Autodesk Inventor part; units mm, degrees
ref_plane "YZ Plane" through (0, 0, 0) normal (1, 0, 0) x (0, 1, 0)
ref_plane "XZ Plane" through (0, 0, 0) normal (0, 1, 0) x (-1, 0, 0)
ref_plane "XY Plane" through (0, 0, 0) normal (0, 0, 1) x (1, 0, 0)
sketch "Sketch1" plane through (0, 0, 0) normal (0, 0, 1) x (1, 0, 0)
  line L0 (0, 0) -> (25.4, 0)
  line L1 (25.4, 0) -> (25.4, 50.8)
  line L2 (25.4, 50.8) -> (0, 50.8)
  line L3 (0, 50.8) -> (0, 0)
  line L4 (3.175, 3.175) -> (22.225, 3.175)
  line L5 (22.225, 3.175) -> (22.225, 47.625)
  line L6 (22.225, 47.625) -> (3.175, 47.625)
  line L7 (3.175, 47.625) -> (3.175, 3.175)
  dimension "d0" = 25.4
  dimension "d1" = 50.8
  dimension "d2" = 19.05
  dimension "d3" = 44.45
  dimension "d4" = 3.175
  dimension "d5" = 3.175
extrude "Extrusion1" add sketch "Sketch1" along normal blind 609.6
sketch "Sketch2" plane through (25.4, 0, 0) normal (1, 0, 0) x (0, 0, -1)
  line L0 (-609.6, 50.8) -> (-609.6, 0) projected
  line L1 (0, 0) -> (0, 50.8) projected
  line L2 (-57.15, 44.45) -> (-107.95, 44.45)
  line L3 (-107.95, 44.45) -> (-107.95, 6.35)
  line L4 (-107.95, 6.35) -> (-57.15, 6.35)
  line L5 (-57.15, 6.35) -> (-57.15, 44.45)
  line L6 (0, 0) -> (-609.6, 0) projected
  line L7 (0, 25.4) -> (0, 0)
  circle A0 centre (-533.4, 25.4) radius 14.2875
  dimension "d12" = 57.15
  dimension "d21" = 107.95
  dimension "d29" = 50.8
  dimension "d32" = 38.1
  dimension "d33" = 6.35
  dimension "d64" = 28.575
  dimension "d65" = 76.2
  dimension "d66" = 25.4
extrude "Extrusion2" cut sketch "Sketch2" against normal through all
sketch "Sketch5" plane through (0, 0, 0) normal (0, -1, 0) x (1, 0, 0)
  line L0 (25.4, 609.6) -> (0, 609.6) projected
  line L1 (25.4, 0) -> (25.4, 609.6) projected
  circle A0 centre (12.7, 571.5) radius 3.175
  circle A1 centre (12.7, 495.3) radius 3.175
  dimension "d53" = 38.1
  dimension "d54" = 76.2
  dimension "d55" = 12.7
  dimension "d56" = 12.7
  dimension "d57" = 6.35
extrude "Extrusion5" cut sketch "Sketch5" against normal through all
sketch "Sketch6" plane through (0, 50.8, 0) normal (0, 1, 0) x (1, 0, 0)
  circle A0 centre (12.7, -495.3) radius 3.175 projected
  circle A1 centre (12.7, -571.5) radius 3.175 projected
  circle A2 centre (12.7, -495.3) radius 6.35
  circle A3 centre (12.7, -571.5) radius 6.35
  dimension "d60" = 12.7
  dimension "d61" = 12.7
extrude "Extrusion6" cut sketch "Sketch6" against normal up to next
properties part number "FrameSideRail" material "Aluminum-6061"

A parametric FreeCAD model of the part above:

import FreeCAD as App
import Part
import Sketcher

V = App.Vector
Q = App.Units.Quantity

doc = App.newDocument("Part")
params = doc.addObject("Spreadsheet::Sheet", "Params")
for row, (alias, value) in enumerate([
    ("sketch1_width", "1 in"),
    ("sketch1_height", "2 in"),
    ("sketch1_width2", "0.75 in"),
    ("sketch1_height2", "1.75 in"),
    ("pad1_length", "24 in"),
    ("sketch2_height", "2 in"),
    ("sketch2_diameter", "1.125 in"),
    ("sketch2_width", "1.5 in"),
    ("sketch3_diameter", "0.25 in"),
    ("sketch4_diameter", "0.5 in"),
    ("sketch4_diameter2", "0.25 in"),
], start=1):
    params.set(f"A{row}", alias)
    params.set(f"B{row}", "=" + value)
    params.setAlias(f"B{row}", alias)

body = doc.addObject("PartDesign::Body", "Body")

sketch1 = body.newObject("Sketcher::SketchObject", "Sketch")
sketch1.AttachmentSupport = (doc.getObject("XY_Plane"), [""])
sketch1.MapMode = "FlatFace"
sketch1.addGeometry([
    Part.LineSegment(V(0, 51, 0), V(0, 0, 0)),
    Part.LineSegment(V(0, 0, 0), V(25, 0, 0)),
    Part.LineSegment(V(25, 0, 0), V(25, 51, 0)),
    Part.LineSegment(V(25, 51, 0), V(0, 51, 0)),
    Part.LineSegment(V(22, 3, 0), V(3, 3, 0)),
    Part.LineSegment(V(3, 3, 0), V(3, 48, 0)),
    Part.LineSegment(V(3, 48, 0), V(22, 48, 0)),
    Part.LineSegment(V(22, 48, 0), V(22, 3, 0)),
], False)
sketch1.addConstraint([
    Sketcher.Constraint("Coincident", 0, 2, 1, 1),
    Sketcher.Constraint("Coincident", 1, 2, 2, 1),
    Sketcher.Constraint("Coincident", 2, 2, 3, 1),
    Sketcher.Constraint("Coincident", 3, 2, 0, 1),
    Sketcher.Constraint("Coincident", 4, 2, 5, 1),
    Sketcher.Constraint("Coincident", 5, 2, 6, 1),
    Sketcher.Constraint("Coincident", 6, 2, 7, 1),
    Sketcher.Constraint("Coincident", 7, 2, 4, 1),
    Sketcher.Constraint("Vertical", 0),
    Sketcher.Constraint("Horizontal", 1),
    Sketcher.Constraint("Vertical", 2),
    Sketcher.Constraint("Horizontal", 3),
    Sketcher.Constraint("Horizontal", 4),
    Sketcher.Constraint("Vertical", 5),
    Sketcher.Constraint("Horizontal", 6),
    Sketcher.Constraint("Vertical", 7),
    Sketcher.Constraint("Coincident", 0, 2, -1, 1),
    Sketcher.Constraint("DistanceX", 1, 1, 1, 2, Q("1 in")),
    Sketcher.Constraint("DistanceY", 0, 2, 0, 1, Q("2 in")),
    Sketcher.Constraint("DistanceX", 4, 2, 4, 1, Q("0.75 in")),
    Sketcher.Constraint("DistanceY", 5, 1, 5, 2, Q("1.75 in")),
    Sketcher.Constraint("DistanceX", -1, 1, 4, 2, Q("0.125 in")),
    Sketcher.Constraint("DistanceY", -1, 1, 4, 2, Q("0.125 in")),
])
sketch1.setExpression("Constraints[17]", "Params.sketch1_width")
sketch1.setExpression("Constraints[18]", "Params.sketch1_height")
sketch1.setExpression("Constraints[19]", "Params.sketch1_width2")
sketch1.setExpression("Constraints[20]", "Params.sketch1_height2")
pad1 = body.newObject("PartDesign::Pad", "Pad")
pad1.Profile = sketch1
pad1.setExpression("Length", "Params.pad1_length")

sketch2 = body.newObject("Sketcher::SketchObject", "Sketch001")
sketch2.AttachmentSupport = (doc.getObject("YZ_Plane"), [""])
sketch2.MapMode = "FlatFace"
sketch2.AttachmentOffset = App.Placement(V(0, 0, 1 * 25.4), App.Rotation())
sketch2.addGeometry([
    Part.LineSegment(V(6, 57, 0), V(44, 57, 0)),
    Part.LineSegment(V(44, 57, 0), V(44, 108, 0)),
    Part.LineSegment(V(44, 108, 0), V(6, 108, 0)),
    Part.LineSegment(V(6, 108, 0), V(6, 57, 0)),
    Part.Circle(V(25, 533, 0), V(0, 0, 1), 14),
], False)
sketch2.addConstraint([
    Sketcher.Constraint("Coincident", 0, 2, 1, 1),
    Sketcher.Constraint("Coincident", 1, 2, 2, 1),
    Sketcher.Constraint("Coincident", 2, 2, 3, 1),
    Sketcher.Constraint("Coincident", 3, 2, 0, 1),
    Sketcher.Constraint("Horizontal", 0),
    Sketcher.Constraint("Vertical", 1),
    Sketcher.Constraint("Horizontal", 2),
    Sketcher.Constraint("Vertical", 3),
    Sketcher.Constraint("DistanceY", 1, 1, 1, 2, Q("2 in")),
    Sketcher.Constraint("Diameter", 4, Q("1.125 in")),
    Sketcher.Constraint("DistanceX", 0, 1, 0, 2, Q("1.5 in")),
    Sketcher.Constraint("DistanceX", -1, 1, 4, 3, Q("1 in")),
    Sketcher.Constraint("DistanceY", -1, 1, 0, 2, Q("2.25 in")),
    Sketcher.Constraint("DistanceX", -1, 1, 2, 2, Q("0.25 in")),
    Sketcher.Constraint("DistanceY", -1, 1, 4, 3, Q("21 in")),
])
sketch2.setExpression("Constraints[8]", "Params.sketch2_height")
sketch2.setExpression("Constraints[9]", "Params.sketch2_diameter")
sketch2.setExpression("Constraints[10]", "Params.sketch2_width")
pocket1 = body.newObject("PartDesign::Pocket", "Pocket")
pocket1.Profile = sketch2
pocket1.Type = "ThroughAll"

sketch3 = body.newObject("Sketcher::SketchObject", "Sketch002")
sketch3.AttachmentSupport = (doc.getObject("XZ_Plane"), [""])
sketch3.MapMode = "FlatFace"
sketch3.addGeometry([
    Part.Circle(V(12.7, 571.5, 0), V(0, 0, 1), 3.2),
    Part.Circle(V(12.7, 495.3, 0), V(0, 0, 1), 3.2),
], False)
sketch3.addConstraint([
    Sketcher.Constraint("Equal", 0, 1),
    Sketcher.Constraint("Vertical", 0, 3, 1, 3),
    Sketcher.Constraint("Diameter", 0, Q("0.25 in")),
    Sketcher.Constraint("DistanceY", 1, 3, 0, 3, Q("3 in")),
    Sketcher.Constraint("DistanceX", -1, 1, 0, 3, Q("0.5 in")),
    Sketcher.Constraint("DistanceY", -1, 1, 0, 3, Q("22.5 in")),
])
sketch3.setExpression("Constraints[2]", "Params.sketch3_diameter")
pocket2 = body.newObject("PartDesign::Pocket", "Pocket001")
pocket2.Profile = sketch3
pocket2.Type = "ThroughAll"

sketch4 = body.newObject("Sketcher::SketchObject", "Sketch003")
sketch4.AttachmentSupport = (doc.getObject("XZ_Plane"), [""])
sketch4.MapMode = "FlatFace"
sketch4.AttachmentOffset = App.Placement(V(0, 0, -2 * 25.4), App.Rotation())
sketch4.addGeometry([
    Part.Circle(V(12.7, 495.3, 0), V(0, 0, 1), 6.3),
    Part.Circle(V(12.7, 495.3, 0), V(0, 0, 1), 3.2),
    Part.Circle(V(12.7, 571.5, 0), V(0, 0, 1), 6.3),
    Part.Circle(V(12.7, 571.5, 0), V(0, 0, 1), 3.2),
], False)
sketch4.addConstraint([
    Sketcher.Constraint("Coincident", 1, 3, 0, 3),
    Sketcher.Constraint("Coincident", 3, 3, 2, 3),
    Sketcher.Constraint("Equal", 0, 2),
    Sketcher.Constraint("Equal", 1, 3),
    Sketcher.Constraint("Vertical", 1, 3, 2, 3),
    Sketcher.Constraint("Diameter", 0, Q("0.5 in")),
    Sketcher.Constraint("DistanceX", -1, 1, 0, 3, Q("0.5 in")),
    Sketcher.Constraint("Diameter", 1, Q("0.25 in")),
    Sketcher.Constraint("DistanceY", 0, 3, 2, 3, Q("3 in")),
    Sketcher.Constraint("DistanceY", -1, 1, 0, 3, Q("19.5 in")),
])
sketch4.setExpression("Constraints[5]", "Params.sketch4_diameter")
sketch4.setExpression("Constraints[7]", "Params.sketch4_diameter2")
pocket3 = body.newObject("PartDesign::Pocket", "Pocket002")
pocket3.Profile = sketch4
pocket3.Type = "UpToFirst"
pocket3.Reversed = True

doc.recompute()
